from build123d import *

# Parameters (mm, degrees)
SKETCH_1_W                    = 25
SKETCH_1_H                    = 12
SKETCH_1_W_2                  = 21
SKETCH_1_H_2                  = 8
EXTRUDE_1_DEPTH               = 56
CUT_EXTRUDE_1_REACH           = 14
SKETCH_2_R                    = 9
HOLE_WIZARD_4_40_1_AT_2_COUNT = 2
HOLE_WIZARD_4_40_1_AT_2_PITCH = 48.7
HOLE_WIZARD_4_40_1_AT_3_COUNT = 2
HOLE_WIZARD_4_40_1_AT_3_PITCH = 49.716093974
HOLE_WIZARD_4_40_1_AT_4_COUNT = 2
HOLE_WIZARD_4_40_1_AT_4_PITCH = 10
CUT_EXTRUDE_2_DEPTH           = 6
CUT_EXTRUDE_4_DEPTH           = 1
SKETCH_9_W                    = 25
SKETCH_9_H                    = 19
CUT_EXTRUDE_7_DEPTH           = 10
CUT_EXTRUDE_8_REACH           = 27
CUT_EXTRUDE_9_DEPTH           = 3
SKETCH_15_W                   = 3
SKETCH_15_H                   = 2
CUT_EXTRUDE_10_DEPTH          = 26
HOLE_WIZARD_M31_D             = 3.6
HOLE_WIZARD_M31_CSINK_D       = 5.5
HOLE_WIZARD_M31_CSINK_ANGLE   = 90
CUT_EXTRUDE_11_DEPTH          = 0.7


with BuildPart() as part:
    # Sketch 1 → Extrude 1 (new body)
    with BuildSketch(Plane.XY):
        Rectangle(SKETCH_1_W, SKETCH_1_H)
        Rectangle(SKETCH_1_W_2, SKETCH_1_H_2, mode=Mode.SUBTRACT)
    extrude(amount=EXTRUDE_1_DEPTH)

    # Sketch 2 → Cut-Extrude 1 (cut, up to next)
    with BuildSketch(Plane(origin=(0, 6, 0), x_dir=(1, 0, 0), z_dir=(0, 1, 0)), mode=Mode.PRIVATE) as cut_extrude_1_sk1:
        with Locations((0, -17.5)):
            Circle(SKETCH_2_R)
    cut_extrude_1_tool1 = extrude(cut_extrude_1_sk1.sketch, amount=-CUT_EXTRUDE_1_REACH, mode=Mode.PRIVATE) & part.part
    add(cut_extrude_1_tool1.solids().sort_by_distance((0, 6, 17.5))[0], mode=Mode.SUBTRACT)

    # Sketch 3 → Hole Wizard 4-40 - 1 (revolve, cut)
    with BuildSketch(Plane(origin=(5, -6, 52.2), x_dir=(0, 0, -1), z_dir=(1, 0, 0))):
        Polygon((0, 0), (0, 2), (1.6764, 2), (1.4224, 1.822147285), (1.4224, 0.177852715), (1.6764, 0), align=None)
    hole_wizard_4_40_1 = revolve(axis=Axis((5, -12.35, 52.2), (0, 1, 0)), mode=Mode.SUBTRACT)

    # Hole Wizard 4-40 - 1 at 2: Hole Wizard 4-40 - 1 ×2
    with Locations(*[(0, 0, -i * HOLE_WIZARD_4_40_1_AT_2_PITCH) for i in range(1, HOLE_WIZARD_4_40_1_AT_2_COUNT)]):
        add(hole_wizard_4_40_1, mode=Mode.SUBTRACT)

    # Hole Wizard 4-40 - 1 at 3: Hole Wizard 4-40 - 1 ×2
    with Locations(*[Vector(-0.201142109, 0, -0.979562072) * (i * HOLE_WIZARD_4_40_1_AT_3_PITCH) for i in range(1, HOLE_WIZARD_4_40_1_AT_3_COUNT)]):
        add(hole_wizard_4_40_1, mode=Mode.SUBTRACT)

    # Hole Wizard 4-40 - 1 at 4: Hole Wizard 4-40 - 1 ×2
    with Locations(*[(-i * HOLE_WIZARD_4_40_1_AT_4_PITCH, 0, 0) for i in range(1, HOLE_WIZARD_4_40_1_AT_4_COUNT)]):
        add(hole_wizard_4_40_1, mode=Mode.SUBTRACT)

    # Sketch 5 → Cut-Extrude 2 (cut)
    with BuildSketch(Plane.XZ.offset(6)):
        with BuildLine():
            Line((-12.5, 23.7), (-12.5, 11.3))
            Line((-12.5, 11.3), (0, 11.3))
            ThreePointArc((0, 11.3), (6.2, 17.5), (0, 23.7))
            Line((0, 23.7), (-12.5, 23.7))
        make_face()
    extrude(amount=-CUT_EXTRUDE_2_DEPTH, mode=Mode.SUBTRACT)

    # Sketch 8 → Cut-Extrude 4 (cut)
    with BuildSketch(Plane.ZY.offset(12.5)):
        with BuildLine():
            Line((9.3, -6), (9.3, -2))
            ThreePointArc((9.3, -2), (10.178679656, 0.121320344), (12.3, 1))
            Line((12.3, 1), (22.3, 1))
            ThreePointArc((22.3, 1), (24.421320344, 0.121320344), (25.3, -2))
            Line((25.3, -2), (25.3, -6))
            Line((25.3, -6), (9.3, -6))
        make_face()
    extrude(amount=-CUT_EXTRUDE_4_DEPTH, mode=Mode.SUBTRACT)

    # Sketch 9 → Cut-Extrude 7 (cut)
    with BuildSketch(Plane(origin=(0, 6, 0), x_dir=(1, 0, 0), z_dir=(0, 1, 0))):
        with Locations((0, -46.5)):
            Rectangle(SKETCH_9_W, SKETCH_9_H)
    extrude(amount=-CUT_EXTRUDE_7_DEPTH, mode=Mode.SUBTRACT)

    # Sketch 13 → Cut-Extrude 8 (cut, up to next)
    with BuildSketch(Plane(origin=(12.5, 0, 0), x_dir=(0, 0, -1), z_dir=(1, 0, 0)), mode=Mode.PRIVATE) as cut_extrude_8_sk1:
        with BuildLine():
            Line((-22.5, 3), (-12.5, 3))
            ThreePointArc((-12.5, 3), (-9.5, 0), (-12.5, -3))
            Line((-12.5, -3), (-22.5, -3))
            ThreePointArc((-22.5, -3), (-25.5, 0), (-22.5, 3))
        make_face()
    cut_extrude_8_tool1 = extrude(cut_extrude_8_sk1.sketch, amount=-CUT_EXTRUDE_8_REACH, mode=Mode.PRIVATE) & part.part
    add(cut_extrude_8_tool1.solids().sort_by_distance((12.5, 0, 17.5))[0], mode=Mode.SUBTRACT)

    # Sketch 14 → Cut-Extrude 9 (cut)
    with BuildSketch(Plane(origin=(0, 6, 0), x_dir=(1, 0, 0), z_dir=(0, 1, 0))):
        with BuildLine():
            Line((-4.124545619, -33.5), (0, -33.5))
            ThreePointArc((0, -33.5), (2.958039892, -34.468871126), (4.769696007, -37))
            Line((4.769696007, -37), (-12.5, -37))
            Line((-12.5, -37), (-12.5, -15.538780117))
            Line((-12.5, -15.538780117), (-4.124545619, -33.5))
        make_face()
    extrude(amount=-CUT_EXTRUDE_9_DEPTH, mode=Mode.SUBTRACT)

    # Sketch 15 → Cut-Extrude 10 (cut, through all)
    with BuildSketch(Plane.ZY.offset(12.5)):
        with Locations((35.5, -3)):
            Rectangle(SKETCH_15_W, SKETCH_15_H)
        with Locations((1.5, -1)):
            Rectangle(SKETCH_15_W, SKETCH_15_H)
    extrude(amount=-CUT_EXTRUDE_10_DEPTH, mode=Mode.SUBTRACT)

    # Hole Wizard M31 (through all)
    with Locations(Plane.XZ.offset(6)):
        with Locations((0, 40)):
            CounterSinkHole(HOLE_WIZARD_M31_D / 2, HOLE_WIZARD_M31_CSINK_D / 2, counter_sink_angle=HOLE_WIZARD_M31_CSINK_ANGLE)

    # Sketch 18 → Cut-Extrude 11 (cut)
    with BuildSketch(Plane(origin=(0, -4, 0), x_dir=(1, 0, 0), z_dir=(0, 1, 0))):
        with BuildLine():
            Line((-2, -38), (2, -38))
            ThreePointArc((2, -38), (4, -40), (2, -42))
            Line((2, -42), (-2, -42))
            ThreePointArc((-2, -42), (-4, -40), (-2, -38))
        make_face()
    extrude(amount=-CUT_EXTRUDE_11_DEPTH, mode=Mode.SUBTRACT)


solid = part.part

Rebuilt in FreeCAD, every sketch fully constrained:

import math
import FreeCAD as App
import Part
import Sketcher
from FreeCAD import Vector
Q = App.Units.Quantity


def add_polygon(sketch, points):
    """Adds a closed chain of lines whose ends are joined by coincident constraints."""
    first, n = sketch.GeometryCount, len(points)
    for a, b in zip(points, points[1:] + points[:1]):
        sketch.addGeometry(Part.LineSegment(App.Vector(*a, 0), App.Vector(*b, 0)), False)
    for i in range(n):
        sketch.addConstraint(Sketcher.Constraint("Coincident", first + i, 2, first + (i + 1) % n, 1))

doc = App.newDocument("Part")
params = doc.addObject("Spreadsheet::Sheet", "Params")
for row, (alias, value) in enumerate([
    ("sketch1_width", "25 mm"),
    ("sketch1_width2", "21 mm"),
    ("sketch1_height", "12 mm"),
    ("sketch1_height2", "8 mm"),
    ("pad1_length", "56 mm"),
    ("sketch2_diameter", "18 mm"),
    ("sketch3_width", "2 mm"),
    ("groove_angle", "360 deg"),
    ("linearpattern_pitch", "48.7 mm"),
    ("linearpattern2_pitch", "49.716094 mm"),
    ("linearpattern3_pitch", "10 mm"),
    ("sketch4_radius", "6.2 mm"),
    ("sketch4_width", "12.5 mm"),
    ("pocket2_length", "6 mm"),
    ("sketch5_radius", "3 mm"),
    ("sketch5_width", "4 mm"),
    ("sketch5_height", "16 mm"),
    ("pocket3_length", "1 mm"),
    ("sketch6_width", "25 mm"),
    ("sketch6_height", "19 mm"),
    ("pocket4_length", "10 mm"),
    ("sketch7_radius", "3 mm"),
    ("sketch7_height", "10 mm"),
    ("sketch8_radius", "5 mm"),
    ("pocket6_length", "3 mm"),
    ("sketch9_width", "2 mm"),
    ("sketch9_height", "3 mm"),
    ("sketch10_diameter", "3.6 mm"),
    ("hole_diameter", "3.6 mm"),
    ("hole_csink_diameter", "5.5 mm"),
    ("sketch11_radius", "2 mm"),
    ("sketch11_width", "4 mm"),
    ("pocket8_length", "0.7 mm"),
], start=1):
    params.set(f"A{row}", alias)
    params.set(f"B{row}", "=" + value)
    params.setAlias(f"B{row}", alias)

body = doc.addObject("PartDesign::Body", "Body")

sketch1 = doc.addObject("Sketcher::SketchObject", "Sketch")
body.addObject(sketch1)
sketch1.AttachmentSupport = (doc.XY_Plane, [""])
sketch1.MapMode = "FlatFace"
add_polygon(sketch1, [(-12, 6), (-12, -6), (12, -6), (12, 6)])
add_polygon(sketch1, [(10, -4), (-10, -4), (-10, 4), (10, 4)])
sketch1.addConstraint([
    Sketcher.Constraint("Vertical", 0),
    Sketcher.Constraint("Horizontal", 1),
    Sketcher.Constraint("Vertical", 2),
    Sketcher.Constraint("Horizontal", 3),
    Sketcher.Constraint("Horizontal", 4),
    Sketcher.Constraint("Vertical", 5),
    Sketcher.Constraint("Horizontal", 6),
    Sketcher.Constraint("Vertical", 7),
    Sketcher.Constraint("Symmetric", 0, 2, 2, 2, -1, 1),
    Sketcher.Constraint("Symmetric", 4, 2, 6, 2, -1, 1),
    Sketcher.Constraint("DistanceX", 1, 1, 1, 2, Q("25 mm")),
    Sketcher.Constraint("DistanceX", 4, 2, 4, 1, Q("21 mm")),
    Sketcher.Constraint("DistanceY", 0, 2, 0, 1, Q("12 mm")),
    Sketcher.Constraint("DistanceY", 5, 1, 5, 2, Q("8 mm")),
])
sketch1.setExpression("Constraints[18]", "Params.sketch1_width")
sketch1.setExpression("Constraints[19]", "Params.sketch1_width2")
sketch1.setExpression("Constraints[20]", "Params.sketch1_height")
sketch1.setExpression("Constraints[21]", "Params.sketch1_height2")
pad1 = doc.addObject("PartDesign::Pad", "Pad")
body.addObject(pad1)
pad1.Profile = sketch1
pad1.setExpression("Length", "Params.pad1_length")

sketch2 = doc.addObject("Sketcher::SketchObject", "Sketch001")
body.addObject(sketch2)
sketch2.AttachmentSupport = (doc.XZ_Plane, [""])
sketch2.MapMode = "FlatFace"
sketch2.AttachmentOffset = App.Placement(Vector(0, 0, -6), App.Rotation())
sketch2.addGeometry(Part.Circle(Vector(0, 18, 0), Vector(0, 0, 1), 9), False)
sketch2.addConstraint([
    Sketcher.Constraint("PointOnObject", 0, 3, -2),
    Sketcher.Constraint("Diameter", 0, Q("18 mm")),
    Sketcher.Constraint("DistanceY", -1, 1, 0, 3, Q("17.5 mm")),
])
sketch2.setExpression("Constraints[1]", "Params.sketch2_diameter")
pocket1 = doc.addObject("PartDesign::Pocket", "Pocket")
body.addObject(pocket1)
pocket1.Profile = sketch2
pocket1.Type = "UpToFirst"
pocket1.Reversed = True

sketch3 = doc.addObject("Sketcher::SketchObject", "Sketch002")
body.addObject(sketch3)
sketch3.AttachmentSupport = (doc.YZ_Plane, [""])
sketch3.MapMode = "FlatFace"
sketch3.AttachmentOffset = App.Placement(Vector(0, 0, 5), App.Rotation())
add_polygon(sketch3, [(-4, 52.2), (-6, 52.2), (-6, 50.52), (-5.82, 50.78), (-4.18, 50.78), (-4, 50.52)])
sketch3.addGeometry(Part.LineSegment(Vector(-6, 52.2, 0), Vector(-4, 52.2, 0)), True)
sketch3.addConstraint([
    Sketcher.Constraint("Horizontal", 0),
    Sketcher.Constraint("Vertical", 1),
    Sketcher.Constraint("Horizontal", 3),
    Sketcher.Constraint("Vertical", 5),
    Sketcher.Constraint("Horizontal", 6),
    Sketcher.Constraint("Coincident", 6, 1, 0, 2),
    Sketcher.Constraint("Horizontal", 1, 2, 4, 2),
    Sketcher.Constraint("Vertical", 4, 2, 6, 2),
    Sketcher.Constraint("Equal", 2, 4),
    Sketcher.Constraint("DistanceX", 0, 2, 0, 1, Q("2 mm")),
    Sketcher.Constraint("Angle", 2, Q("55 deg")),
    Sketcher.Constraint("DistanceX", 0, 2, -1, 1, Q("6 mm")),
    Sketcher.Constraint("DistanceY", -1, 1, 0, 2, Q("52.2 mm")),
    Sketcher.Constraint("DistanceY", 1, 2, 1, 1, Q("1.6764 mm")),
    Sketcher.Constraint("DistanceY", 1, 2, 2, 2, Q("0.254 mm")),
])
sketch3.setExpression("Constraints[15]", "Params.sketch3_width")
groove = doc.addObject("PartDesign::Groove", "Groove")
body.addObject(groove)
groove.Profile = sketch3
groove.ReferenceAxis = (sketch3, ["Axis0"])
groove.setExpression("Angle", "Params.groove_angle")
doc.recompute()

linearpattern = doc.addObject("PartDesign::LinearPattern", "LinearPattern")
body.addObject(linearpattern)
linearpattern.Originals = [groove]
linearpattern.Direction = (doc.Z_Axis, [""])
linearpattern.Mode = "offset"
linearpattern.setExpression("Offset", "Params.linearpattern_pitch")
linearpattern.Occurrences = 2
linearpattern.Reversed = True
body.Tip = linearpattern
doc.recompute()

datumline = doc.addObject("PartDesign::Line", "DatumLine")
body.addObject(datumline)
datumline.Placement = App.Placement(Vector(0, 0, 0), App.Rotation(Vector(0, 0, 1), Vector(-0.201142109, 0, -0.979562072)))
linearpattern2 = doc.addObject("PartDesign::LinearPattern", "LinearPattern001")
body.addObject(linearpattern2)
linearpattern2.Originals = [groove]
linearpattern2.Direction = (datumline, [""])
linearpattern2.Mode = "offset"
linearpattern2.setExpression("Offset", "Params.linearpattern2_pitch")
linearpattern2.Occurrences = 2
body.Tip = linearpattern2
doc.recompute()

linearpattern3 = doc.addObject("PartDesign::LinearPattern", "LinearPattern002")
body.addObject(linearpattern3)
linearpattern3.Originals = [groove]
linearpattern3.Direction = (doc.X_Axis, [""])
linearpattern3.Mode = "offset"
linearpattern3.setExpression("Offset", "Params.linearpattern3_pitch")
linearpattern3.Occurrences = 2
linearpattern3.Reversed = True
body.Tip = linearpattern3

sketch4 = doc.addObject("Sketcher::SketchObject", "Sketch003")
body.addObject(sketch4)
sketch4.AttachmentSupport = (doc.XZ_Plane, [""])
sketch4.MapMode = "FlatFace"
sketch4.AttachmentOffset = App.Placement(Vector(0, 0, 6), App.Rotation())
sketch4.addGeometry([
    Part.LineSegment(Vector(-12, 24, 0), Vector(-12, 11, 0)),
    Part.LineSegment(Vector(-12, 11, 0), Vector(0, 11, 0)),
    Part.ArcOfCircle(Part.Circle(Vector(0, 18, 0), Vector(0, 0, 1), 6), math.radians(-90), math.radians(90)),
    Part.LineSegment(Vector(0, 24, 0), Vector(-12, 24, 0)),
], False)
sketch4.addConstraint([
    Sketcher.Constraint("Coincident", 0, 2, 1, 1),
    Sketcher.Constraint("Tangent", 1, 2, 2, 1),
    Sketcher.Constraint("Tangent", 2, 2, 3, 1),
    Sketcher.Constraint("Coincident", 3, 2, 0, 1),
    Sketcher.Constraint("Vertical", 0),
    Sketcher.Constraint("Horizontal", 1),
    Sketcher.Constraint("Horizontal", 3),
    Sketcher.Constraint("PointOnObject", 2, 3, -2),
    Sketcher.Constraint("Radius", 2, Q("6.2 mm")),
    Sketcher.Constraint("DistanceX", 1, 1, 1, 2, Q("12.5 mm")),
    Sketcher.Constraint("DistanceY", -1, 1, 2, 3, Q("17.5 mm")),
])
sketch4.setExpression("Constraints[8]", "Params.sketch4_radius")
sketch4.setExpression("Constraints[9]", "Params.sketch4_width")
pocket2 = doc.addObject("PartDesign::Pocket", "Pocket001")
body.addObject(pocket2)
pocket2.Profile = sketch4
pocket2.setExpression("Length", "Params.pocket2_length")

sketch5 = doc.addObject("Sketcher::SketchObject", "Sketch004")
body.addObject(sketch5)
sketch5.AttachmentSupport = (doc.YZ_Plane, [""])
sketch5.MapMode = "FlatFace"
sketch5.AttachmentOffset = App.Placement(Vector(0, 0, -12.5), App.Rotation())
sketch5.addGeometry([
    Part.LineSegment(Vector(-2, 9.3, 0), Vector(-6, 9.3, 0)),
    Part.LineSegment(Vector(-6, 9.3, 0), Vector(-6, 25.3, 0)),
    Part.LineSegment(Vector(-6, 25.3, 0), Vector(-2, 25.3, 0)),
    Part.ArcOfCircle(Part.Circle(Vector(-2, 22.3, 0), Vector(0, 0, 1), 3), math.radians(0), math.radians(90)),
    Part.LineSegment(Vector(1, 22.3, 0), Vector(1, 12.3, 0)),
    Part.ArcOfCircle(Part.Circle(Vector(-2, 12.3, 0), Vector(0, 0, 1), 3), math.radians(-90), math.radians(0)),
], False)
sketch5.addConstraint([
    Sketcher.Constraint("Coincident", 0, 2, 1, 1),
    Sketcher.Constraint("Coincident", 1, 2, 2, 1),
    Sketcher.Constraint("Tangent", 2, 2, 3, 2),
    Sketcher.Constraint("Tangent", 3, 1, 4, 1),
    Sketcher.Constraint("Tangent", 4, 2, 5, 2),
    Sketcher.Constraint("Tangent", 5, 1, 0, 1),
    Sketcher.Constraint("Horizontal", 0),
    Sketcher.Constraint("Vertical", 1),
    Sketcher.Constraint("Horizontal", 2),
    Sketcher.Constraint("Vertical", 4),
    Sketcher.Constraint("Equal", 3, 5),
    Sketcher.Constraint("Radius", 3, Q("3 mm")),
    Sketcher.Constraint("DistanceX", 0, 2, 0, 1, Q("4 mm")),
    Sketcher.Constraint("DistanceY", 1, 1, 1, 2, Q("16 mm")),
    Sketcher.Constraint("DistanceX", 3, 3, -1, 1, Q("2 mm")),
    Sketcher.Constraint("DistanceY", -1, 1, 3, 3, Q("22.3 mm")),
])
sketch5.setExpression("Constraints[11]", "Params.sketch5_radius")
sketch5.setExpression("Constraints[12]", "Params.sketch5_width")
sketch5.setExpression("Constraints[13]", "Params.sketch5_height")
pocket3 = doc.addObject("PartDesign::Pocket", "Pocket002")
body.addObject(pocket3)
pocket3.Profile = sketch5
pocket3.setExpression("Length", "Params.pocket3_length")
pocket3.Reversed = True

sketch6 = doc.addObject("Sketcher::SketchObject", "Sketch005")
body.addObject(sketch6)
sketch6.AttachmentSupport = (doc.XZ_Plane, [""])
sketch6.MapMode = "FlatFace"
sketch6.AttachmentOffset = App.Placement(Vector(0, 0, -6), App.Rotation())
add_polygon(sketch6, [(-12, 37), (-12, 56), (12, 56), (12, 37)])
sketch6.addConstraint([
    Sketcher.Constraint("Vertical", 0),
    Sketcher.Constraint("Horizontal", 1),
    Sketcher.Constraint("Vertical", 2),
    Sketcher.Constraint("Horizontal", 3),
    Sketcher.Constraint("DistanceX", 1, 1, 1, 2, Q("25 mm")),
    Sketcher.Constraint("DistanceY", 0, 1, 0, 2, Q("19 mm")),
    Sketcher.Constraint("DistanceY", -1, 1, 0, 2, Q("56 mm")),
    Sketcher.Constraint("DistanceX", 0, 2, -1, 1, Q("12.5 mm")),
])
sketch6.setExpression("Constraints[8]", "Params.sketch6_width")
sketch6.setExpression("Constraints[9]", "Params.sketch6_height")
pocket4 = doc.addObject("PartDesign::Pocket", "Pocket003")
body.addObject(pocket4)
pocket4.Profile = sketch6
pocket4.setExpression("Length", "Params.pocket4_length")
pocket4.Reversed = True

sketch7 = doc.addObject("Sketcher::SketchObject", "Sketch006")
body.addObject(sketch7)
sketch7.AttachmentSupport = (doc.YZ_Plane, [""])
sketch7.MapMode = "FlatFace"
sketch7.AttachmentOffset = App.Placement(Vector(0, 0, 12.5), App.Rotation())
sketch7.addGeometry([
    Part.LineSegment(Vector(3, 12.5, 0), Vector(3, 22.5, 0)),
    Part.ArcOfCircle(Part.Circle(Vector(0, 22.5, 0), Vector(0, 0, 1), 3), math.radians(0), math.radians(180)),
    Part.LineSegment(Vector(-3, 22.5, 0), Vector(-3, 12.5, 0)),
    Part.ArcOfCircle(Part.Circle(Vector(0, 12.5, 0), Vector(0, 0, 1), 3), math.radians(180), math.radians(360)),
], False)
sketch7.addConstraint([
    Sketcher.Constraint("Tangent", 0, 2, 1, 1),
    Sketcher.Constraint("Tangent", 1, 2, 2, 1),
    Sketcher.Constraint("Tangent", 2, 2, 3, 1),
    Sketcher.Constraint("Tangent", 3, 2, 0, 1),
    Sketcher.Constraint("Vertical", 0),
    Sketcher.Constraint("Vertical", 2),
    Sketcher.Constraint("PointOnObject", 1, 3, -2),
    Sketcher.Constraint("Radius", 1, Q("3 mm")),
    Sketcher.Constraint("DistanceY", 0, 1, 0, 2, Q("10 mm")),
    Sketcher.Constraint("DistanceY", -1, 1, 1, 3, Q("22.5 mm")),
])
sketch7.setExpression("Constraints[7]", "Params.sketch7_radius")
sketch7.setExpression("Constraints[8]", "Params.sketch7_height")
pocket5 = doc.addObject("PartDesign::Pocket", "Pocket004")
body.addObject(pocket5)
pocket5.Profile = sketch7
pocket5.Type = "UpToFirst"

sketch8 = doc.addObject("Sketcher::SketchObject", "Sketch007")
body.addObject(sketch8)
sketch8.AttachmentSupport = (doc.XZ_Plane, [""])
sketch8.MapMode = "FlatFace"
sketch8.AttachmentOffset = App.Placement(Vector(0, 0, -6), App.Rotation())
sketch8.addGeometry([
    Part.LineSegment(Vector(0, 33.5, 0), Vector(-4.1, 33.5, 0)),
    Part.LineSegment(Vector(-4.1, 33.5, 0), Vector(-12.5, 15.5, 0)),
    Part.LineSegment(Vector(-12.5, 15.5, 0), Vector(-12.5, 37, 0)),
    Part.LineSegment(Vector(-12.5, 37, 0), Vector(4.8, 37, 0)),
    Part.ArcOfCircle(Part.Circle(Vector(0, 38.5, 0), Vector(0, 0, 1), 5), math.radians(-90), math.radians(-17)),
], False)
sketch8.addConstraint([
    Sketcher.Constraint("Coincident", 0, 2, 1, 1),
    Sketcher.Constraint("Coincident", 1, 2, 2, 1),
    Sketcher.Constraint("Coincident", 2, 2, 3, 1),
    Sketcher.Constraint("Coincident", 3, 2, 4, 2),
    Sketcher.Constraint("Tangent", 4, 1, 0, 1),
    Sketcher.Constraint("Horizontal", 0),
    Sketcher.Constraint("Vertical", 2),
    Sketcher.Constraint("Horizontal", 3),
    Sketcher.Constraint("PointOnObject", 4, 3, -2),
    Sketcher.Constraint("Radius", 4, Q("5 mm")),
    Sketcher.Constraint("Angle", 1, Q("-115 deg")),
    Sketcher.Constraint("DistanceY", -1, 1, 2, 2, Q("37 mm")),
    Sketcher.Constraint("DistanceY", -1, 1, 4, 3, Q("38.5 mm")),
    Sketcher.Constraint("DistanceX", 1, 2, -1, 1, Q("12.5 mm")),
    Sketcher.Constraint("DistanceY", 2, 1, 2, 2, Q("21.46122 mm")),
])
sketch8.setExpression("Constraints[9]", "Params.sketch8_radius")
pocket6 = doc.addObject("PartDesign::Pocket", "Pocket005")
body.addObject(pocket6)
pocket6.Profile = sketch8
pocket6.setExpression("Length", "Params.pocket6_length")
pocket6.Reversed = True

sketch9 = doc.addObject("Sketcher::SketchObject", "Sketch008")
body.addObject(sketch9)
sketch9.AttachmentSupport = (doc.YZ_Plane, [""])
sketch9.MapMode = "FlatFace"
sketch9.AttachmentOffset = App.Placement(Vector(0, 0, -12.5), App.Rotation())
add_polygon(sketch9, [(-2, 34), (-4, 34), (-4, 37), (-2, 37)])
add_polygon(sketch9, [(0, 0), (-2, 0), (-2, 3), (0, 3)])
sketch9.addConstraint([
    Sketcher.Constraint("Horizontal", 0),
    Sketcher.Constraint("Vertical", 1),
    Sketcher.Constraint("Horizontal", 2),
    Sketcher.Constraint("Vertical", 3),
    Sketcher.Constraint("Horizontal", 4),
    Sketcher.Constraint("Vertical", 5),
    Sketcher.Constraint("Horizontal", 6),
    Sketcher.Constraint("Vertical", 7),
    Sketcher.Constraint("Coincident", 7, 2, -1, 1),
    Sketcher.Constraint("Vertical", 3, 2, 4, 2),
    Sketcher.Constraint("Equal", 2, 4),
    Sketcher.Constraint("Equal", 3, 5),
    Sketcher.Constraint("DistanceX", 0, 2, 0, 1, Q("2 mm")),
    Sketcher.Constraint("DistanceY", 1, 1, 1, 2, Q("3 mm")),
    Sketcher.Constraint("DistanceY", -1, 1, 0, 2, Q("34 mm")),
])
sketch9.setExpression("Constraints[20]", "Params.sketch9_width")
sketch9.setExpression("Constraints[21]", "Params.sketch9_height")
pocket7 = doc.addObject("PartDesign::Pocket", "Pocket006")
body.addObject(pocket7)
pocket7.Profile = sketch9
pocket7.Type = "ThroughAll"
pocket7.Reversed = True

sketch10 = doc.addObject("Sketcher::SketchObject", "Sketch009")
body.addObject(sketch10)
sketch10.AttachmentSupport = (doc.XZ_Plane, [""])
sketch10.MapMode = "FlatFace"
sketch10.AttachmentOffset = App.Placement(Vector(0, 0, 6), App.Rotation())
sketch10.addGeometry(Part.Circle(Vector(0, 40, 0), Vector(0, 0, 1), 1.8), False)
sketch10.addConstraint([
    Sketcher.Constraint("PointOnObject", 0, 3, -2),
    Sketcher.Constraint("Diameter", 0, Q("3.6 mm")),
    Sketcher.Constraint("DistanceY", -1, 1, 0, 3, Q("40 mm")),
])
sketch10.setExpression("Constraints[1]", "Params.sketch10_diameter")
doc.recompute()
hole = doc.addObject("PartDesign::Hole", "Hole")
body.addObject(hole)
hole.Profile = sketch10
hole.ThreadType = "None"
hole.setExpression("Diameter", "Params.hole_diameter")
hole.DepthType = "ThroughAll"
hole.HoleCutType = "Countersink"
hole.setExpression("HoleCutDiameter", "Params.hole_csink_diameter")
hole.HoleCutCountersinkAngle = 90

sketch11 = doc.addObject("Sketcher::SketchObject", "Sketch010")
body.addObject(sketch11)
sketch11.AttachmentSupport = (doc.XZ_Plane, [""])
sketch11.MapMode = "FlatFace"
sketch11.AttachmentOffset = App.Placement(Vector(0, 0, 4), App.Rotation())
sketch11.addGeometry([
    Part.LineSegment(Vector(2, 38, 0), Vector(-2, 38, 0)),
    Part.ArcOfCircle(Part.Circle(Vector(-2, 40, 0), Vector(0, 0, 1), 2), math.radians(90), math.radians(270)),
    Part.LineSegment(Vector(-2, 42, 0), Vector(2, 42, 0)),
    Part.ArcOfCircle(Part.Circle(Vector(2, 40, 0), Vector(0, 0, 1), 2), math.radians(-90), math.radians(90)),
], False)
sketch11.addConstraint([
    Sketcher.Constraint("Tangent", 0, 2, 1, 2),
    Sketcher.Constraint("Tangent", 1, 1, 2, 1),
    Sketcher.Constraint("Tangent", 2, 2, 3, 2),
    Sketcher.Constraint("Tangent", 3, 1, 0, 1),
    Sketcher.Constraint("Horizontal", 0),
    Sketcher.Constraint("Horizontal", 2),
    Sketcher.Constraint("Radius", 1, Q("2 mm")),
    Sketcher.Constraint("DistanceX", 0, 2, 0, 1, Q("4 mm")),
    Sketcher.Constraint("DistanceX", 1, 3, -1, 1, Q("2 mm")),
    Sketcher.Constraint("DistanceY", -1, 1, 1, 3, Q("40 mm")),
])
sketch11.setExpression("Constraints[6]", "Params.sketch11_radius")
sketch11.setExpression("Constraints[7]", "Params.sketch11_width")
pocket8 = doc.addObject("PartDesign::Pocket", "Pocket007")
body.addObject(pocket8)
pocket8.Profile = sketch11
pocket8.setExpression("Length", "Params.pocket8_length")
pocket8.Reversed = True

doc.recompute()
